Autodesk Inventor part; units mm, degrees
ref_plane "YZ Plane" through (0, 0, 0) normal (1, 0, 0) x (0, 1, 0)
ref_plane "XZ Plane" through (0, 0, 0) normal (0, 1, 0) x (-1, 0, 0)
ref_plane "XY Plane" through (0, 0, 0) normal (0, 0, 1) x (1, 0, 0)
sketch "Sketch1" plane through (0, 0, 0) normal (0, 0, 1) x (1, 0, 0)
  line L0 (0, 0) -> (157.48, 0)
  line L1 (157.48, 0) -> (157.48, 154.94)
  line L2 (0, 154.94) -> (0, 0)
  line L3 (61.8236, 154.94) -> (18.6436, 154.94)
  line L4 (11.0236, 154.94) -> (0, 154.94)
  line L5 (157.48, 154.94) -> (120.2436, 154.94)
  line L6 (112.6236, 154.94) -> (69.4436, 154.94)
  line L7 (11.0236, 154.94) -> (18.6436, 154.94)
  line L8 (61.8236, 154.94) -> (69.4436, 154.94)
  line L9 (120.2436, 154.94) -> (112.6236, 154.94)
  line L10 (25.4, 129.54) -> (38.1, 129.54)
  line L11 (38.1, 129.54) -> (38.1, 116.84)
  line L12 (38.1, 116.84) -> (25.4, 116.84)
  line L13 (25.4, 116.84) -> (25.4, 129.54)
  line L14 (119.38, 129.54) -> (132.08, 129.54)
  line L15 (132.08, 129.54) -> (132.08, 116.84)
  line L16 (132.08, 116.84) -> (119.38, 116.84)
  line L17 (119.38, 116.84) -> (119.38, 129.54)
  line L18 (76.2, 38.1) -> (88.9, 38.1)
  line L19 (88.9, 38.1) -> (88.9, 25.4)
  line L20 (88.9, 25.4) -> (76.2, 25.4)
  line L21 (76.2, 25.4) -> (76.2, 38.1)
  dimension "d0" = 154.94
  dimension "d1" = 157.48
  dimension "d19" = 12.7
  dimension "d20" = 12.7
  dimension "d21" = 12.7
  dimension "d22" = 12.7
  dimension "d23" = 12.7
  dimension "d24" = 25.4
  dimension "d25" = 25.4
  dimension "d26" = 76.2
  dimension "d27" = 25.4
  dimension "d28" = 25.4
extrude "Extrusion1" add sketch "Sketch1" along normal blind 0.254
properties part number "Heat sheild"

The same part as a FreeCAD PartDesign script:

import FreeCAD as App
import Part
import Sketcher
from FreeCAD import Vector
Q = App.Units.Quantity


def add_polygon(sketch, points):
    """Adds a closed chain of lines whose ends are joined by coincident constraints."""
    first, n = sketch.GeometryCount, len(points)
    for a, b in zip(points, points[1:] + points[:1]):
        sketch.addGeometry(Part.LineSegment(App.Vector(*a, 0), App.Vector(*b, 0)), False)
    for i in range(n):
        sketch.addConstraint(Sketcher.Constraint("Coincident", first + i, 2, first + (i + 1) % n, 1))

doc = App.newDocument("Part")
body = doc.addObject("PartDesign::Body", "Body")

# Sketch on XY plane
sketch1 = body.newObject("Sketcher::SketchObject", "Sketch")
sketch1.AttachmentSupport = (doc.getObject("XY_Plane"), [""])
sketch1.MapMode = "FlatFace"
add_polygon(sketch1, [(0, 154.94), (0, 0), (157.48, 0), (157.48, 154.94)])  # lines 0-3
add_polygon(sketch1, [(76.2, 25.4), (76.2, 38.1), (88.9, 38.1), (88.9, 25.4)])  # lines 4-7
add_polygon(sketch1, [(25.4, 116.84), (25.4, 129.54), (38.1, 129.54), (38.1, 116.84)])  # lines 8-11
add_polygon(sketch1, [(119.38, 116.84), (119.38, 129.54), (132.08, 129.54), (132.08, 116.84)])  # lines 12-15
sketch1.addConstraint(Sketcher.Constraint("Vertical", 0))
sketch1.addConstraint(Sketcher.Constraint("Horizontal", 1))
sketch1.addConstraint(Sketcher.Constraint("Vertical", 2))
sketch1.addConstraint(Sketcher.Constraint("Horizontal", 3))
sketch1.addConstraint(Sketcher.Constraint("Vertical", 4))
sketch1.addConstraint(Sketcher.Constraint("Horizontal", 5))
sketch1.addConstraint(Sketcher.Constraint("Vertical", 6))
sketch1.addConstraint(Sketcher.Constraint("Horizontal", 7))
sketch1.addConstraint(Sketcher.Constraint("Vertical", 8))
sketch1.addConstraint(Sketcher.Constraint("Horizontal", 9))
sketch1.addConstraint(Sketcher.Constraint("Vertical", 10))
sketch1.addConstraint(Sketcher.Constraint("Horizontal", 11))
sketch1.addConstraint(Sketcher.Constraint("Vertical", 12))
sketch1.addConstraint(Sketcher.Constraint("Horizontal", 13))
sketch1.addConstraint(Sketcher.Constraint("Vertical", 14))
sketch1.addConstraint(Sketcher.Constraint("Horizontal", 15))
sketch1.addConstraint(Sketcher.Constraint("Coincident", 0, 2, -1, 1))
sketch1.addConstraint(Sketcher.Constraint("Horizontal", 9, 2, 12, 2))
sketch1.addConstraint(Sketcher.Constraint("Horizontal", 11, 2, 14, 2))
sketch1.addConstraint(Sketcher.Constraint("Equal", 7, 9))
sketch1.addConstraint(Sketcher.Constraint("Equal", 11, 13))
sketch1.addConstraint(Sketcher.Constraint("Equal", 15, 4))
sketch1.addConstraint(Sketcher.Constraint("Equal", 6, 8))
sketch1.addConstraint(Sketcher.Constraint("DistanceX", 1, 1, 1, 2, Q("6.2 in")))
sketch1.addConstraint(Sketcher.Constraint("DistanceX", 5, 1, 5, 2, Q("0.5 in")))
sketch1.addConstraint(Sketcher.Constraint("DistanceY", 0, 2, 0, 1, Q("6.1 in")))
sketch1.addConstraint(Sketcher.Constraint("DistanceX", -1, 1, 4, 2, Q("3 in")))
sketch1.addConstraint(Sketcher.Constraint("DistanceY", -1, 1, 6, 2, Q("1 in")))
sketch1.addConstraint(Sketcher.Constraint("DistanceX", -1, 1, 8, 2, Q("1 in")))
sketch1.addConstraint(Sketcher.Constraint("DistanceY", 8, 2, 3, 2, Q("1 in")))
sketch1.addConstraint(Sketcher.Constraint("DistanceX", 13, 2, 2, 2, Q("1 in")))
pad1 = body.newObject("PartDesign::Pad", "Pad")
pad1.Profile = sketch1
pad1.Length = Q("0.01 in")

doc.recompute()
